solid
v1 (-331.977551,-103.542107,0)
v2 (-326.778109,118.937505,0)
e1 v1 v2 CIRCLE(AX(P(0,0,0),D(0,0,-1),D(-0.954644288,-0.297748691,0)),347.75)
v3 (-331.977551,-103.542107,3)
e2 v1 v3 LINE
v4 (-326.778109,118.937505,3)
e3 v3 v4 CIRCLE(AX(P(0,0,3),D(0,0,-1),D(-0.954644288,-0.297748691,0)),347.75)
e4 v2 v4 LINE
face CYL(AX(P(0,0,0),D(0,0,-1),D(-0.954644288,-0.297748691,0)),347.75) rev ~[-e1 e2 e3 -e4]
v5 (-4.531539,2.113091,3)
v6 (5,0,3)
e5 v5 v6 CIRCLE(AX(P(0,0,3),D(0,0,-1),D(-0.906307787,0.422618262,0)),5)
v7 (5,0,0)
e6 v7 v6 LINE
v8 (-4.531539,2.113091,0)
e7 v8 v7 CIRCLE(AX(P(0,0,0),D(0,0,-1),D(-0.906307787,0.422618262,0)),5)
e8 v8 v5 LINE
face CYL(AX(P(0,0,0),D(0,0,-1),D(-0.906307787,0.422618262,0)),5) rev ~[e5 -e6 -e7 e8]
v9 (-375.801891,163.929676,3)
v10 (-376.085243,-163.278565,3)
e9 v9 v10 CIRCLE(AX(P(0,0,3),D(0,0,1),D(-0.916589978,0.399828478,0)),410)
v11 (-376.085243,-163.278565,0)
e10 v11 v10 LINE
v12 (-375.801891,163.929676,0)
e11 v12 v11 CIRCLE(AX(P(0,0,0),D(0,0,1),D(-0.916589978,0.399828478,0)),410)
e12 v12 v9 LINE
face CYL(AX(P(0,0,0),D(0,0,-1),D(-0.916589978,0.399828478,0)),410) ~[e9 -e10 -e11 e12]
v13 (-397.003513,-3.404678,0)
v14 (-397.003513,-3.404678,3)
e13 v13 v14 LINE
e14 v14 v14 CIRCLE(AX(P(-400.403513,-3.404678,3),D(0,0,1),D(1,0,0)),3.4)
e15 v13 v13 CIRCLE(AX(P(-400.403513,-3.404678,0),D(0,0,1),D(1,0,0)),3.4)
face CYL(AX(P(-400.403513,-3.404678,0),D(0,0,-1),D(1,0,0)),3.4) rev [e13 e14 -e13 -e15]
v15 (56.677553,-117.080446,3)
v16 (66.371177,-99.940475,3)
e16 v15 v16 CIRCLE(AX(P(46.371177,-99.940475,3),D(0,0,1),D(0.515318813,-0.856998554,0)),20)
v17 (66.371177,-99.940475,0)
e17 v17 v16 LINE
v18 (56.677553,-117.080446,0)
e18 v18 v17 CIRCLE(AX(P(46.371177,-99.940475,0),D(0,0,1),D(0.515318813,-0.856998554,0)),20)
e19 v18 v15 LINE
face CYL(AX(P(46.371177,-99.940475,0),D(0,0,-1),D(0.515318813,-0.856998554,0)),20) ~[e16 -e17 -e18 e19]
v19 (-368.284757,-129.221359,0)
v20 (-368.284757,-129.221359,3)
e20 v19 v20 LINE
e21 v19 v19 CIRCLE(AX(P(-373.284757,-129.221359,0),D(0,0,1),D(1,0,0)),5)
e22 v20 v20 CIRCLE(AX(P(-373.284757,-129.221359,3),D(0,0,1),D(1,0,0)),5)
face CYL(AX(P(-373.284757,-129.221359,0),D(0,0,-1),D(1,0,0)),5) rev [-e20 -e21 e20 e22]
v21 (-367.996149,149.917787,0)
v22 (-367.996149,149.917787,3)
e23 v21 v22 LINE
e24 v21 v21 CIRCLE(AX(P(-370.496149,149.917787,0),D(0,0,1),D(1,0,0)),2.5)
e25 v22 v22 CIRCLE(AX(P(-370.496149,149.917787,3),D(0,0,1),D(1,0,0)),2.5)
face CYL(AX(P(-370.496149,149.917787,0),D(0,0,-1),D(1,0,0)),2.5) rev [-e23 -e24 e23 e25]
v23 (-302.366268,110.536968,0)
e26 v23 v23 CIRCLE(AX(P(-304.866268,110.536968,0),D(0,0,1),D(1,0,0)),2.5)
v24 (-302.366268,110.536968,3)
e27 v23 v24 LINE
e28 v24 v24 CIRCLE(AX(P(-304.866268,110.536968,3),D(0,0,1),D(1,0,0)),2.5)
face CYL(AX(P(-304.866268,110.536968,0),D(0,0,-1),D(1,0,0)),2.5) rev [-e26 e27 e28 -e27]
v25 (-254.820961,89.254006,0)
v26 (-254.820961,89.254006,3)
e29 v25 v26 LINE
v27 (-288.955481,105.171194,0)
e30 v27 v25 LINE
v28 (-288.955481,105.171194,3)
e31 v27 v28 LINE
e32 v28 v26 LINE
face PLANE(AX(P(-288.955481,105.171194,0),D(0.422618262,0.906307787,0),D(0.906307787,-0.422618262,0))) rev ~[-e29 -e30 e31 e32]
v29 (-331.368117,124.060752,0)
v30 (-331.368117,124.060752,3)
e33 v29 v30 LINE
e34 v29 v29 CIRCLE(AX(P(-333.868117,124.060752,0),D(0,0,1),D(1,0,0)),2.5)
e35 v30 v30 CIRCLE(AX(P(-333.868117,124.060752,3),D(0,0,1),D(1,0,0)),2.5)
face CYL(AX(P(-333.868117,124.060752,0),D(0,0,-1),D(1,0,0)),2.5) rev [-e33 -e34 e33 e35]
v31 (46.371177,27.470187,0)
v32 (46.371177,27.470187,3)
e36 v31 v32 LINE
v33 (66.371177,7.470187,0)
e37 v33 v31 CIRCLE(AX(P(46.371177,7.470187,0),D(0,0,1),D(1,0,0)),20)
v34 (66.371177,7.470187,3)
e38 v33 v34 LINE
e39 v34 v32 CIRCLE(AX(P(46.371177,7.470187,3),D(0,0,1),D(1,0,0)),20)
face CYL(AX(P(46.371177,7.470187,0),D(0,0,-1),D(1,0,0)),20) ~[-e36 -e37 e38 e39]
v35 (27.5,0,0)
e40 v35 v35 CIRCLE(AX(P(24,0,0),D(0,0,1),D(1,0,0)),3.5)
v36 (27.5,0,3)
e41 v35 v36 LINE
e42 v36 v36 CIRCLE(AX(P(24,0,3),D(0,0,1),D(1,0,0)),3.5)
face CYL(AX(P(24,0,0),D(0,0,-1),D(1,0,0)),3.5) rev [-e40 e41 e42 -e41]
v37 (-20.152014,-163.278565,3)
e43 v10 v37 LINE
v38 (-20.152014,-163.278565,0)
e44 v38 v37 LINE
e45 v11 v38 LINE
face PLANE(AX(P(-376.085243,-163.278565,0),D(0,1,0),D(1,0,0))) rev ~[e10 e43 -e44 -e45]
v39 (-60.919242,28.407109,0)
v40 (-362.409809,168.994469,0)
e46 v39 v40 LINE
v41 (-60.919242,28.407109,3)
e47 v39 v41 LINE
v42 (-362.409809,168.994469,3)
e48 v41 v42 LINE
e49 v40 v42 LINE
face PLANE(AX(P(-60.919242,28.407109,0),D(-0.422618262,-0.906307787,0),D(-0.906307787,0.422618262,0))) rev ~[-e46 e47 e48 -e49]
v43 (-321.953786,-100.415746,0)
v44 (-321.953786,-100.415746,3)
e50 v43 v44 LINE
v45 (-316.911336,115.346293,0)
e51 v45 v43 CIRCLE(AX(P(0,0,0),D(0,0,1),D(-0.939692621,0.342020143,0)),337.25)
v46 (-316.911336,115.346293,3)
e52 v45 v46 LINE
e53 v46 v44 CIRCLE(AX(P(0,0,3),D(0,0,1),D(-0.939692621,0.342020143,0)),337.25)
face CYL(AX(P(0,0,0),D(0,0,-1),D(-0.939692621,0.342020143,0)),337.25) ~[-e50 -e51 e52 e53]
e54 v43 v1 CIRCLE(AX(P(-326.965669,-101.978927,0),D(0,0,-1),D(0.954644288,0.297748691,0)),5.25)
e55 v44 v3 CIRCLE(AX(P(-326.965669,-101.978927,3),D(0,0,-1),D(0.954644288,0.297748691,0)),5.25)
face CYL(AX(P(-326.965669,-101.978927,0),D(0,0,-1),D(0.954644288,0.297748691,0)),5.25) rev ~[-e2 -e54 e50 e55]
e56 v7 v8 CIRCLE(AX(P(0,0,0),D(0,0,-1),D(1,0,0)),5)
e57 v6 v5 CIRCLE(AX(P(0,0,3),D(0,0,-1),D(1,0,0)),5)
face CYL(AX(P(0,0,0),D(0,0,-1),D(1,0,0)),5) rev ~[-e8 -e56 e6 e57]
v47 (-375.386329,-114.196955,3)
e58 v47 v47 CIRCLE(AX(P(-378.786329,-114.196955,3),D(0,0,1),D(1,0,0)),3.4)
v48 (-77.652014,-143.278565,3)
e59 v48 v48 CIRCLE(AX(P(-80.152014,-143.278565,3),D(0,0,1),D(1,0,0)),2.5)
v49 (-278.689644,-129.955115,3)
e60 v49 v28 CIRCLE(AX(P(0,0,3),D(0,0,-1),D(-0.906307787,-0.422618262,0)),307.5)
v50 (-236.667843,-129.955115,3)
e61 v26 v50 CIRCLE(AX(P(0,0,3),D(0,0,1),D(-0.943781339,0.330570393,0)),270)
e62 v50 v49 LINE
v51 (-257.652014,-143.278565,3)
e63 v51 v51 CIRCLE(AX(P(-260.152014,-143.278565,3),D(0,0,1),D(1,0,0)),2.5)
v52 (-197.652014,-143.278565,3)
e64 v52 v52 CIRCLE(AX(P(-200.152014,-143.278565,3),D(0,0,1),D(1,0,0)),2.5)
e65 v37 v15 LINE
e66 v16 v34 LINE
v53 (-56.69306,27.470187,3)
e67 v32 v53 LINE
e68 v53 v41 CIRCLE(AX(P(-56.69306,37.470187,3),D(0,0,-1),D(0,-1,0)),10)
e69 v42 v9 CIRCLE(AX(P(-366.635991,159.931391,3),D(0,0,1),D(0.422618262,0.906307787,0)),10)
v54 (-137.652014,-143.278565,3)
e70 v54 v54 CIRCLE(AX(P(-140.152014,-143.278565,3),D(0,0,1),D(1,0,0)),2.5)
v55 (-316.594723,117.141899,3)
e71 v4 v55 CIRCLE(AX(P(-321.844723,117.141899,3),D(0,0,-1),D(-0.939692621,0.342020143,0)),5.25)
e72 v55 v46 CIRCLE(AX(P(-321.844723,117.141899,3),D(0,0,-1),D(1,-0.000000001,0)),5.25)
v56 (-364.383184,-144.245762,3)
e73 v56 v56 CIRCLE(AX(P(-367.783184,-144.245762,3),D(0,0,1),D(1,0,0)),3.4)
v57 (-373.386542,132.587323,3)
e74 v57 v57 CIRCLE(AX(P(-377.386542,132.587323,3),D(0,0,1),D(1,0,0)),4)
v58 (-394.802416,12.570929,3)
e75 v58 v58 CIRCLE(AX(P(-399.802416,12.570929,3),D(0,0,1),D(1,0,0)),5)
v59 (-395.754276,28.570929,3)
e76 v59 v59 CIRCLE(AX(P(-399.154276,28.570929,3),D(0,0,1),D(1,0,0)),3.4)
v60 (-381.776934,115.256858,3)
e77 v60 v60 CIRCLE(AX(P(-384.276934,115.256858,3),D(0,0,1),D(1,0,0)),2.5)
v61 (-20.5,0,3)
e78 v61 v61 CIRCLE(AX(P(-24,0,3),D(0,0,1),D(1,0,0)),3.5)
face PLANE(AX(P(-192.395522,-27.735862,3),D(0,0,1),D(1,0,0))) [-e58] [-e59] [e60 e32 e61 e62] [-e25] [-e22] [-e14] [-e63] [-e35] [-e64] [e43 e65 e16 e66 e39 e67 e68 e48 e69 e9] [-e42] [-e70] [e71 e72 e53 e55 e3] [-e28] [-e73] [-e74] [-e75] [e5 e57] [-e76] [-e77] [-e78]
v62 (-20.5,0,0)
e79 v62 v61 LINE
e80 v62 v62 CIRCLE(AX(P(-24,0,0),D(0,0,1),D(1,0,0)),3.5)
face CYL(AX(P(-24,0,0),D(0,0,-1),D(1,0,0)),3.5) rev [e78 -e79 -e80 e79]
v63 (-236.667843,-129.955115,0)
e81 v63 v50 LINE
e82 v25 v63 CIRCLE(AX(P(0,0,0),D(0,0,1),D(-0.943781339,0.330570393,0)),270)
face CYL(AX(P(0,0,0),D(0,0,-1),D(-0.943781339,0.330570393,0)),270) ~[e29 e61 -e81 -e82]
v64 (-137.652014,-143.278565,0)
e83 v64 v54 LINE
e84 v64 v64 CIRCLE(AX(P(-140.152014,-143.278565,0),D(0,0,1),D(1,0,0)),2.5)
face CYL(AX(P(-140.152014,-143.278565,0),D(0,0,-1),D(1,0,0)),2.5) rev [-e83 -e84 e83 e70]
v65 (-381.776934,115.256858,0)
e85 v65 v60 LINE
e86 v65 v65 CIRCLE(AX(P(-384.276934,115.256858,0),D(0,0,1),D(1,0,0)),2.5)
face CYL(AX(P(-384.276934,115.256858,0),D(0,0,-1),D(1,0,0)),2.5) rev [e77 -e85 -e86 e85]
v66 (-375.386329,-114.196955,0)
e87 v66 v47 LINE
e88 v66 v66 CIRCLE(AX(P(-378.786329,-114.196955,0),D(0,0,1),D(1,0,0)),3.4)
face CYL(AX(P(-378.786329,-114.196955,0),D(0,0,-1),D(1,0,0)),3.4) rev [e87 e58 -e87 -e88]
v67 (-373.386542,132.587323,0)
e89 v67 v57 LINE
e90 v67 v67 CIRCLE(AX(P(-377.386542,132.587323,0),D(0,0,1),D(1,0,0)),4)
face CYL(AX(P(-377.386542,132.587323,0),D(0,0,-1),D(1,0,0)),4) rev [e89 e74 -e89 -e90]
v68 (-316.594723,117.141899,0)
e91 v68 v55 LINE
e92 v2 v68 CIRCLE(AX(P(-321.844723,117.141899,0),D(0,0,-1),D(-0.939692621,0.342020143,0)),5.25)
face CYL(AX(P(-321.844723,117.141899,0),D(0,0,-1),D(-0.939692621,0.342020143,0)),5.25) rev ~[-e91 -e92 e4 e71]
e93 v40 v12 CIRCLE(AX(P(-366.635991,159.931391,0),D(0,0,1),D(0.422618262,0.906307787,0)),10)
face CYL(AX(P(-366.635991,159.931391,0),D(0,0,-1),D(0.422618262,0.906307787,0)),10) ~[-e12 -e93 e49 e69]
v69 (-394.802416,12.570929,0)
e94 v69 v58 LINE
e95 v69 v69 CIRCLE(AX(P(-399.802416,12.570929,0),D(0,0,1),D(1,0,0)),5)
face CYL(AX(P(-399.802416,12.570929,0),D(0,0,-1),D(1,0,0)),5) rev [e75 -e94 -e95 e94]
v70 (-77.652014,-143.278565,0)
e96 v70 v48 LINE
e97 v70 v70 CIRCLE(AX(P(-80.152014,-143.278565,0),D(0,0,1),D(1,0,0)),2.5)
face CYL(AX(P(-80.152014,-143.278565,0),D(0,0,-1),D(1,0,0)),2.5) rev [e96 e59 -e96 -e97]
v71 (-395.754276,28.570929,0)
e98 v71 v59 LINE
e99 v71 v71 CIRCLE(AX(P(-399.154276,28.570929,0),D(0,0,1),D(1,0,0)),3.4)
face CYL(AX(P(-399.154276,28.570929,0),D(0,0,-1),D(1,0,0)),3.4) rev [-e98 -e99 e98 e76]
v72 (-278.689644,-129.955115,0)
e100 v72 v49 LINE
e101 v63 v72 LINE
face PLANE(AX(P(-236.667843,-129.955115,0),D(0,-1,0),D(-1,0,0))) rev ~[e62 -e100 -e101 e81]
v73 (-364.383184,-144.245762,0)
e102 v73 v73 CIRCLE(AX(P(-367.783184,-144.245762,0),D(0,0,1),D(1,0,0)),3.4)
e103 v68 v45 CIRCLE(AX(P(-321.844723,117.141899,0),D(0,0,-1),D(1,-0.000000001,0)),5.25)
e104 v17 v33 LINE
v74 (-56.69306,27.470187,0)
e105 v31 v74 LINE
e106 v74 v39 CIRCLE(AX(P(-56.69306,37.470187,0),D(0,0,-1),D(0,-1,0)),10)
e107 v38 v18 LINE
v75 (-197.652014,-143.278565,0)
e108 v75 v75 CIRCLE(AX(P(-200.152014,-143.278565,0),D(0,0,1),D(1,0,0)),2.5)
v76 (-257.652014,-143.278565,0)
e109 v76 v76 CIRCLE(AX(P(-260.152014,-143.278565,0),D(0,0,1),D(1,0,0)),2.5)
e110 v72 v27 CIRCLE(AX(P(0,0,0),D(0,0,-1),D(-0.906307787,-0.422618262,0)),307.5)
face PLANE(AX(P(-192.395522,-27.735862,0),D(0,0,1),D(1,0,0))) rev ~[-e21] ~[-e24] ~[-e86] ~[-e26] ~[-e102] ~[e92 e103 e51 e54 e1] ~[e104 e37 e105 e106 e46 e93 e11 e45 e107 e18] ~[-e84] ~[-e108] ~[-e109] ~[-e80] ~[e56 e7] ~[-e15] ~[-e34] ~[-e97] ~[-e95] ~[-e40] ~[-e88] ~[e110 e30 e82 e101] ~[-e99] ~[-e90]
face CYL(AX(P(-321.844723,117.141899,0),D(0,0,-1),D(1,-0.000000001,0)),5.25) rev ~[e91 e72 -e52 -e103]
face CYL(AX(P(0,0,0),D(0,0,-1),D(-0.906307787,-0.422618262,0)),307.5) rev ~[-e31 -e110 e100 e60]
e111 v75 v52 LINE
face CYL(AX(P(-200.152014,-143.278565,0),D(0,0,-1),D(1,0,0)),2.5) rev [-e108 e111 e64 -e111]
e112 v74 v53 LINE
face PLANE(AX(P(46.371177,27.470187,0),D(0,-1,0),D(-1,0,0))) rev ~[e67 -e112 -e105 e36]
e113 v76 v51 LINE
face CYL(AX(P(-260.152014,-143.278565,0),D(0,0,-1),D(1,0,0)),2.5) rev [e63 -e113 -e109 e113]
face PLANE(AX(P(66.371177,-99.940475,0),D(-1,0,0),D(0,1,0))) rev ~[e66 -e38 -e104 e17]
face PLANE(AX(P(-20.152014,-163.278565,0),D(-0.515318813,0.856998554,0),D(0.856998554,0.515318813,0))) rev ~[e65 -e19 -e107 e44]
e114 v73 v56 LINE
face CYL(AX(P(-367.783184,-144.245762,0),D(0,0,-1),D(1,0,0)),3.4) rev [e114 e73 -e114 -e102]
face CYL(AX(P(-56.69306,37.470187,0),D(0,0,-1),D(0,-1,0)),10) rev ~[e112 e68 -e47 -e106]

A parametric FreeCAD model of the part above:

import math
import FreeCAD as App
import Part
import Sketcher

V = App.Vector
Q = App.Units.Quantity

doc = App.newDocument("Part")
body = doc.addObject("PartDesign::Body", "Body")

sketch1 = body.newObject("Sketcher::SketchObject", "Sketch")
sketch1.AttachmentSupport = (doc.getObject("XY_Plane"), [""])
sketch1.MapMode = "FlatFace"
sketch1.addGeometry([
    Part.LineSegment(V(-376.1, -163.3, 0), V(-20.2, -163.3, 0)),
    Part.LineSegment(V(-20.2, -163.3, 0), V(56.7, -117.1, 0)),
    Part.ArcOfCircle(Part.Circle(V(46.4, -99.9, 0), V(0, 0, 1), 20), math.radians(-59), math.radians(0)),
    Part.LineSegment(V(66.4, -99.9, 0), V(66.4, 7.5, 0)),
    Part.ArcOfCircle(Part.Circle(V(46.4, 7.5, 0), V(0, 0, 1), 20), math.radians(0), math.radians(90)),
    Part.LineSegment(V(46.4, 27.5, 0), V(-56.7, 27.5, 0)),
    Part.ArcOfCircle(Part.Circle(V(-56.7, 37.5, 0), V(0, 0, 1), 10), math.radians(-115), math.radians(-90)),
    Part.LineSegment(V(-60.9, 28.4, 0), V(-362.4, 169, 0)),
    Part.ArcOfCircle(Part.Circle(V(-366.6, 159.9, 0), V(0, 0, 1), 10), math.radians(65), math.radians(156)),
    Part.ArcOfCircle(Part.Circle(V(0, 0, 0), V(0, 0, 1), 410), math.radians(156), math.radians(203)),
    Part.Circle(V(-367.8, -144.2, 0), V(0, 0, 1), 3.4),
    Part.Circle(V(-373.3, -129.2, 0), V(0, 0, 1), 5),
    Part.Circle(V(-378.8, -114.2, 0), V(0, 0, 1), 3.4),
    Part.Circle(V(-260.2, -143.3, 0), V(0, 0, 1), 2.5),
    Part.Circle(V(-200.2, -143.3, 0), V(0, 0, 1), 2.5),
    Part.Circle(V(-400.4, -3.4, 0), V(0, 0, 1), 3.4),
    Part.LineSegment(V(-236.7, -130, 0), V(-278.7, -130, 0)),
    Part.ArcOfCircle(Part.Circle(V(0, 0, 0), V(0, 0, 1), 307.5), math.radians(160), math.radians(205)),
    Part.LineSegment(V(-289, 105.2, 0), V(-254.8, 89.3, 0)),
    Part.ArcOfCircle(Part.Circle(V(0, 0, 0), V(0, 0, 1), 270), math.radians(161), math.radians(209)),
    Part.Circle(V(-140.2, -143.3, 0), V(0, 0, 1), 2.5),
    Part.Circle(V(-80.2, -143.3, 0), V(0, 0, 1), 2.5),
    Part.Circle(V(-24, 0, 0), V(0, 0, 1), 3.5),
    Part.ArcOfCircle(Part.Circle(V(0, 0, 0), V(0, 0, 1), 5), math.radians(0), math.radians(155)),
    Part.ArcOfCircle(Part.Circle(V(0, 0, 0), V(0, 0, 1), 5), math.radians(155), math.radians(360)),
    Part.Circle(V(24, 0, 0), V(0, 0, 1), 3.5),
    Part.Circle(V(-399.8, 12.6, 0), V(0, 0, 1), 5),
    Part.Circle(V(-399.2, 28.6, 0), V(0, 0, 1), 3.4),
    Part.ArcOfCircle(Part.Circle(V(-321.8, 117.1, 0), V(0, 0, 1), 5.3), math.radians(-20), math.radians(0)),
    Part.ArcOfCircle(Part.Circle(V(0, 0, 0), V(0, 0, 1), 337.3), math.radians(160), math.radians(197)),
    Part.ArcOfCircle(Part.Circle(V(-327, -102, 0), V(0, 0, 1), 5.2), math.radians(-163), math.radians(17)),
    Part.ArcOfCircle(Part.Circle(V(0, 0, 0), V(0, 0, 1), 347.8), math.radians(160), math.radians(197)),
    Part.ArcOfCircle(Part.Circle(V(-321.8, 117.1, 0), V(0, 0, 1), 5.2), math.radians(0), math.radians(160)),
    Part.Circle(V(-304.9, 110.5, 0), V(0, 0, 1), 2.5),
    Part.Circle(V(-384.3, 115.3, 0), V(0, 0, 1), 2.5),
    Part.Circle(V(-377.4, 132.6, 0), V(0, 0, 1), 4),
    Part.Circle(V(-370.5, 149.9, 0), V(0, 0, 1), 2.5),
    Part.Circle(V(-333.9, 124.1, 0), V(0, 0, 1), 2.5),
], False)
sketch1.addConstraint([
    Sketcher.Constraint("Coincident", 0, 2, 1, 1),
    Sketcher.Constraint("Tangent", 1, 2, 2, 1),
    Sketcher.Constraint("Tangent", 2, 2, 3, 1),
    Sketcher.Constraint("Tangent", 3, 2, 4, 1),
    Sketcher.Constraint("Tangent", 4, 2, 5, 1),
    Sketcher.Constraint("Tangent", 5, 2, 6, 2),
    Sketcher.Constraint("Tangent", 6, 1, 7, 1),
    Sketcher.Constraint("Tangent", 7, 2, 8, 1),
    Sketcher.Constraint("Tangent", 8, 2, 9, 1),
    Sketcher.Constraint("Coincident", 9, 2, 0, 1),
    Sketcher.Constraint("Coincident", 16, 2, 17, 2),
    Sketcher.Constraint("Coincident", 17, 1, 18, 1),
    Sketcher.Constraint("Coincident", 18, 2, 19, 1),
    Sketcher.Constraint("Coincident", 19, 2, 16, 1),
    Sketcher.Constraint("Tangent", 23, 1, 24, 2),
    Sketcher.Constraint("Coincident", 24, 1, 23, 2),
    Sketcher.Constraint("Tangent", 28, 1, 29, 1),
    Sketcher.Constraint("Tangent", 29, 2, 30, 2),
    Sketcher.Constraint("Tangent", 30, 1, 31, 2),
    Sketcher.Constraint("Tangent", 31, 1, 32, 2),
    Sketcher.Constraint("Tangent", 32, 1, 28, 2),
    Sketcher.Constraint("Horizontal", 0),
    Sketcher.Constraint("Vertical", 3),
    Sketcher.Constraint("Horizontal", 5),
    Sketcher.Constraint("Horizontal", 16),
    Sketcher.Constraint("Coincident", 9, 3, -1, 1),
    Sketcher.Constraint("Coincident", 17, 3, -1, 1),
    Sketcher.Constraint("Coincident", 19, 3, -1, 1),
    Sketcher.Constraint("Coincident", 23, 3, -1, 1),
    Sketcher.Constraint("Coincident", 29, 3, -1, 1),
    Sketcher.Constraint("Coincident", 31, 3, -1, 1),
    Sketcher.Constraint("Equal", 2, 4),
    Sketcher.Constraint("Equal", 6, 8),
    Sketcher.Constraint("Equal", 10, 12),
    Sketcher.Constraint("Equal", 13, 14),
    Sketcher.Constraint("Equal", 12, 15),
    Sketcher.Constraint("Equal", 14, 20),
    Sketcher.Constraint("Equal", 20, 21),
    Sketcher.Constraint("Equal", 11, 23),
    Sketcher.Constraint("Equal", 22, 25),
    Sketcher.Constraint("Equal", 24, 26),
    Sketcher.Constraint("Equal", 15, 27),
    Sketcher.Constraint("Equal", 28, 30),
    Sketcher.Constraint("Equal", 21, 33),
    Sketcher.Constraint("Equal", 33, 34),
    Sketcher.Constraint("Equal", 34, 36),
    Sketcher.Constraint("Equal", 36, 37),
    Sketcher.Constraint("Symmetric", 22, 3, 25, 3, -1, 1),
    Sketcher.Constraint("PointOnObject", 22, 3, -1),
    Sketcher.Constraint("PointOnObject", 23, 1, -1),
    Sketcher.Constraint("Parallel", 7, 18),
    Sketcher.Constraint("Horizontal", 13, 3, 14, 3),
    Sketcher.Constraint("Horizontal", 14, 3, 20, 3),
    Sketcher.Constraint("Horizontal", 20, 3, 21, 3),
    Sketcher.Constraint("Horizontal", 28, 3, 32, 1),
    Sketcher.Constraint("Diameter", 11, 10.0),
    Sketcher.Constraint("Diameter", 13, 5.0),
    Sketcher.Constraint("Diameter", 22, 7.0),
    Sketcher.Constraint("Diameter", 35, 8.0),
    Sketcher.Constraint("Radius", 2, 20.0),
    Sketcher.Constraint("Radius", 6, 10.0),
    Sketcher.Constraint("Radius", 9, 410.0),
    Sketcher.Constraint("Radius", 19, 270.0),
    Sketcher.Constraint("Diameter", 10, 6.8),
    Sketcher.Constraint("Radius", 17, 307.5),
    Sketcher.Constraint("Angle", 7, Q("155 deg")),
    Sketcher.Constraint("Radius", 28, 5.25),
    Sketcher.Constraint("Radius", 29, 337.25),
    Sketcher.Constraint("DistanceX", 22, 3, -1, 1, 24.0),
    Sketcher.Constraint("DistanceX", 13, 3, 14, 3, 60.0),
    Sketcher.Constraint("DistanceX", 14, 3, 20, 3, 60.0),
    Sketcher.Constraint("DistanceX", 20, 3, 21, 3, 60.0),
    Sketcher.Constraint("DistanceY", 26, 3, 27, 3, 16.0),
    Sketcher.Constraint("DistanceX", 21, 3, 0, 2, 60.0),
    Sketcher.Constraint("DistanceY", 0, 2, 21, 3, 20.0),
    Sketcher.Constraint("DistanceX", 16, 2, 16, 1, 42.021801),
    Sketcher.Constraint("DistanceX", 0, 1, 0, 2, 355.93323),
    Sketcher.Constraint("DistanceY", -1, 1, 28, 3, 117.141899),
    Sketcher.Constraint("DistanceX", 15, 3, 13, 3, 140.251499),
    Sketcher.Constraint("DistanceY", 17, 1, 28, 1, 10.175099),
    Sketcher.Constraint("DistanceX", 10, 3, 29, 2, 45.829398),
    Sketcher.Constraint("DistanceX", 5, 2, 5, 1, 103.064237),
    Sketcher.Constraint("DistanceY", 3, 1, 3, 2, 107.410662),
    Sketcher.Constraint("DistanceX", 6, 3, -1, 1, 56.69306),
    Sketcher.Constraint("DistanceX", 8, 3, -1, 1, 366.635991),
    Sketcher.Constraint("DistanceY", 11, 3, -1, 1, 129.221359),
    Sketcher.Constraint("DistanceX", 12, 3, -1, 1, 378.786329),
    Sketcher.Constraint("DistanceY", -1, 1, 26, 3, 12.570929),
    Sketcher.Constraint("DistanceX", 30, 3, -1, 1, 326.965669),
    Sketcher.Constraint("DistanceX", 33, 3, -1, 1, 304.866268),
    Sketcher.Constraint("DistanceY", -1, 1, 34, 3, 115.256858),
    Sketcher.Constraint("DistanceX", 35, 3, -1, 1, 377.386542),
    Sketcher.Constraint("DistanceX", 36, 3, -1, 1, 370.496149),
    Sketcher.Constraint("DistanceY", -1, 1, 37, 3, 124.060752),
    Sketcher.Constraint("DistanceX", 24, 1, -1, 1, 4.531539),
    Sketcher.Constraint("DistanceY", 10, 3, 6, 3, 181.715949),
    Sketcher.Constraint("DistanceX", 10, 3, 13, 3, 107.631171),
    Sketcher.Constraint("DistanceY", 13, 3, 12, 3, 29.08161),
    Sketcher.Constraint("DistanceY", 11, 3, 15, 3, 125.816681),
    Sketcher.Constraint("DistanceX", 26, 3, 11, 3, 26.517659),
    Sketcher.Constraint("DistanceX", 26, 3, 10, 3, 32.019231),
    Sketcher.Constraint("DistanceX", 26, 3, 27, 3, 0.64814),
    Sketcher.Constraint("DistanceY", 33, 3, 32, 3, 6.604931),
    Sketcher.Constraint("DistanceX", 34, 3, 28, 3, 62.432211),
    Sketcher.Constraint("DistanceY", 35, 3, 8, 3, 27.344069),
    Sketcher.Constraint("DistanceY", 34, 3, 36, 3, 34.660929),
    Sketcher.Constraint("DistanceX", 37, 3, 33, 3, 29.001849),
])
pad1 = body.newObject("PartDesign::Pad", "Pad")
pad1.Profile = sketch1
pad1.Length = 3

doc.recompute()
